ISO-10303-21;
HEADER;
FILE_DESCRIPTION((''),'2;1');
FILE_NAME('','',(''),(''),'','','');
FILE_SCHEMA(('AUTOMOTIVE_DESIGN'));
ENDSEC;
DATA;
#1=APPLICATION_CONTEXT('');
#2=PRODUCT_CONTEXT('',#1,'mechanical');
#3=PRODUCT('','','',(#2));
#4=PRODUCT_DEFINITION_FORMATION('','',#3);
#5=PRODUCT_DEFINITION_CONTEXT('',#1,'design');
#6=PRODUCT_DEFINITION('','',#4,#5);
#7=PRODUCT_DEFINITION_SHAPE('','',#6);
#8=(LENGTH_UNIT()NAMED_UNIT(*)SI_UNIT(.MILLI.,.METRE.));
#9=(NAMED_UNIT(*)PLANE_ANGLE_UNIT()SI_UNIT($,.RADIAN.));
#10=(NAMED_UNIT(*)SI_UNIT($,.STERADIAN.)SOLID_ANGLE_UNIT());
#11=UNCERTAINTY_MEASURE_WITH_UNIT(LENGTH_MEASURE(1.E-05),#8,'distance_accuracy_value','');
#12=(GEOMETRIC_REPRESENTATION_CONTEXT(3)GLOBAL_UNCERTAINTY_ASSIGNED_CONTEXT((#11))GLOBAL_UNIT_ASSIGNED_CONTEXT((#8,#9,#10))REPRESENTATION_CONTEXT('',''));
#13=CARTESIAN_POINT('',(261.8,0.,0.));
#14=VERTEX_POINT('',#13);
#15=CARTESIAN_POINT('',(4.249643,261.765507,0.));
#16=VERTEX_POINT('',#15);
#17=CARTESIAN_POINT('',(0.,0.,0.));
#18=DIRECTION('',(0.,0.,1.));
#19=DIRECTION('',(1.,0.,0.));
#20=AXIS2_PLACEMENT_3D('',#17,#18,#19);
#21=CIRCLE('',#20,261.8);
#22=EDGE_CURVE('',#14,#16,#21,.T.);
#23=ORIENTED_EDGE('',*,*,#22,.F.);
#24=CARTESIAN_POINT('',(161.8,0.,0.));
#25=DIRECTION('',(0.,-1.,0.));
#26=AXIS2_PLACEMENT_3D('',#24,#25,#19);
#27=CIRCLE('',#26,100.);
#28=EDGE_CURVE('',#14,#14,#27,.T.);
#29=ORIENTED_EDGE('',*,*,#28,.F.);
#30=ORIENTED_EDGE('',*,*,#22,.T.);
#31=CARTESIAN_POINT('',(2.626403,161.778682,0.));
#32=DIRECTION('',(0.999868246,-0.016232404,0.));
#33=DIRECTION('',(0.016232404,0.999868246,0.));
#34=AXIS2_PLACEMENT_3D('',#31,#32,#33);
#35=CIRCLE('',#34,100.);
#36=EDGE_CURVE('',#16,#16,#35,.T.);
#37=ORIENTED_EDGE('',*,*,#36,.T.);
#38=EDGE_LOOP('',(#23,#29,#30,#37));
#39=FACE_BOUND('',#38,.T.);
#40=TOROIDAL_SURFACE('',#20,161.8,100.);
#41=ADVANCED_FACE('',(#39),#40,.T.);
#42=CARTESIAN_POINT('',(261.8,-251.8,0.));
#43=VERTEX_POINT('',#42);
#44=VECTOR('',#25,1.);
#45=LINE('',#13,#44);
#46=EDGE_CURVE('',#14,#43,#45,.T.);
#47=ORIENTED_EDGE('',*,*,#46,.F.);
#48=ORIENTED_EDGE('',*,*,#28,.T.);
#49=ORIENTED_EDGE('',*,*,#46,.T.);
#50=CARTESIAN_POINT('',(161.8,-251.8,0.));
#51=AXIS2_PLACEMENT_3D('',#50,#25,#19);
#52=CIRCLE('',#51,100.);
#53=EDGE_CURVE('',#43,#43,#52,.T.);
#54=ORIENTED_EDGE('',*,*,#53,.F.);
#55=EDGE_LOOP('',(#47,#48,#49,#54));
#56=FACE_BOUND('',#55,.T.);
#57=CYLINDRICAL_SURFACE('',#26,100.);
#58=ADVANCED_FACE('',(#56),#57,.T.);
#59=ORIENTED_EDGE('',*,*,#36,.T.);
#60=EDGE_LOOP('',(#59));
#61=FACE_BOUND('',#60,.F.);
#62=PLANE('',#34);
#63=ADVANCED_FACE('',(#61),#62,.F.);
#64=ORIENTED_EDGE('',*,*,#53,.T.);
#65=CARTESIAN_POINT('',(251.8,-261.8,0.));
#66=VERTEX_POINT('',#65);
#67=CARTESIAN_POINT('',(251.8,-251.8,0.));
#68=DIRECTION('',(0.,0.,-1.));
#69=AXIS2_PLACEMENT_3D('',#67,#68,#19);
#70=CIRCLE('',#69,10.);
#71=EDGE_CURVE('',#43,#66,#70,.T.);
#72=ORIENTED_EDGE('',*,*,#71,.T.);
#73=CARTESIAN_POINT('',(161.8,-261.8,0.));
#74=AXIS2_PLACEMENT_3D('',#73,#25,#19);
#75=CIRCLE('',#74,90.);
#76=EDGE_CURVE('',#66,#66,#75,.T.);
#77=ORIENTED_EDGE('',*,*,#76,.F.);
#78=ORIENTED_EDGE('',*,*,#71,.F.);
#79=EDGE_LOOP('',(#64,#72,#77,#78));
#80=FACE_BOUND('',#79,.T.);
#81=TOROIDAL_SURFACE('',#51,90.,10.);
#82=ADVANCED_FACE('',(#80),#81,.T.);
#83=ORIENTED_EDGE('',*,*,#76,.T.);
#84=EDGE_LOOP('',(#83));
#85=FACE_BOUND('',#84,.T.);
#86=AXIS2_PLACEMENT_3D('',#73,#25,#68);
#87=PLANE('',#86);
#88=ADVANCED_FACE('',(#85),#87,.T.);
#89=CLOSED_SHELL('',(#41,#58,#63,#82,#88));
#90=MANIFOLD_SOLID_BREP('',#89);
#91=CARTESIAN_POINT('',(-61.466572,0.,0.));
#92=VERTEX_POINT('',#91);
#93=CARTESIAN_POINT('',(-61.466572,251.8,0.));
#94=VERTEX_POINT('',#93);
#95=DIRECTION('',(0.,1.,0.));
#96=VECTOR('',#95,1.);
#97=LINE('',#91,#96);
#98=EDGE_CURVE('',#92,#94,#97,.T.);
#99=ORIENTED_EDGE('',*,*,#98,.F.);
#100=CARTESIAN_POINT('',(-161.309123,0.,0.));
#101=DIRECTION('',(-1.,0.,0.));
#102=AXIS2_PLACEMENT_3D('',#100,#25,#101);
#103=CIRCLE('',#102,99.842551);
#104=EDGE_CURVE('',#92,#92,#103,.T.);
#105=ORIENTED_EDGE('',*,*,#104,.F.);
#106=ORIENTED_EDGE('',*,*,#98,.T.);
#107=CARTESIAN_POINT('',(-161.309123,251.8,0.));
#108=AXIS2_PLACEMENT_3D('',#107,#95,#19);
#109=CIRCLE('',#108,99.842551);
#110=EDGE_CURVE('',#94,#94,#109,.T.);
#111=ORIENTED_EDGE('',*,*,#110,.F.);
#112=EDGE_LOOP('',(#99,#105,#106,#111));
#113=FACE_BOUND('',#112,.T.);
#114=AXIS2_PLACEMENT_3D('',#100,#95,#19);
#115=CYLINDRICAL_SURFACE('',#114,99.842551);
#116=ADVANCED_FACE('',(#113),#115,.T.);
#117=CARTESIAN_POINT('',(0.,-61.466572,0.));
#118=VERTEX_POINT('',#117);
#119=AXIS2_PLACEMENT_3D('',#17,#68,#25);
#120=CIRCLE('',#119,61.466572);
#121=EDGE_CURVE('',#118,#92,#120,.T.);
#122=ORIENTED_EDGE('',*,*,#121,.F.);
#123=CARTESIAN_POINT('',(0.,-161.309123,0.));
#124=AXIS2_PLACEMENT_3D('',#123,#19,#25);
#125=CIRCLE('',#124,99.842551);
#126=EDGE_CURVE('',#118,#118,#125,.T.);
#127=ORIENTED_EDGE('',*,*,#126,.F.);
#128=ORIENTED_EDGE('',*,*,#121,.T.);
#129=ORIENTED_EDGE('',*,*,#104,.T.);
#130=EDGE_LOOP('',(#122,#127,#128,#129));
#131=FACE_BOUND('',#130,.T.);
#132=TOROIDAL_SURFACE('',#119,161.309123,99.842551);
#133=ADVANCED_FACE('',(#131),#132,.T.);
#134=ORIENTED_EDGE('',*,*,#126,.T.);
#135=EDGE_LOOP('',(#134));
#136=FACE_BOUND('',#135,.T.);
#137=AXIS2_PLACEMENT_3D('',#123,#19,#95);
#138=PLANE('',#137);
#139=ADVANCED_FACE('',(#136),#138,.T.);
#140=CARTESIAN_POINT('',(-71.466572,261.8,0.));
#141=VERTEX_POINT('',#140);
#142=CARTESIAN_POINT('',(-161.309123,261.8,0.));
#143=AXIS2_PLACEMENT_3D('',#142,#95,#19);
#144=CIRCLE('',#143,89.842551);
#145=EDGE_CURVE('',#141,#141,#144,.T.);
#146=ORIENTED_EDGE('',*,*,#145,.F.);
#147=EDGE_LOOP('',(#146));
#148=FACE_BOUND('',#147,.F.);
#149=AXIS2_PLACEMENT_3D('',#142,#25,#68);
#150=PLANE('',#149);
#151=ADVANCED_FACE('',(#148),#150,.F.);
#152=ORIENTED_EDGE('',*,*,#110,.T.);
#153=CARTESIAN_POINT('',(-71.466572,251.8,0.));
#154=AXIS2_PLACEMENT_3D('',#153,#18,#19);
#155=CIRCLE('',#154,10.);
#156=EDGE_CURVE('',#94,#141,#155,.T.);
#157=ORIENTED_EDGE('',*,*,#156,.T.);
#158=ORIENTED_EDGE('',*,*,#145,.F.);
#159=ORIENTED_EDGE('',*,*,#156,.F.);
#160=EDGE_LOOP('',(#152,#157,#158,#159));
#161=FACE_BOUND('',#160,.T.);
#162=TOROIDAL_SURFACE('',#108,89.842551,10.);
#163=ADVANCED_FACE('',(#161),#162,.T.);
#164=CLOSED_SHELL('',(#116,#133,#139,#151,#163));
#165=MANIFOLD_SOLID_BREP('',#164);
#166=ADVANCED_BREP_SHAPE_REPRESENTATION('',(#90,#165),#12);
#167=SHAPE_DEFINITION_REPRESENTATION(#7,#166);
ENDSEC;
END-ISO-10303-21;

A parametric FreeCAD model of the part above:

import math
import FreeCAD as App
import Part
import Sketcher
Q = App.Units.Quantity


def edges_at(feature, points):
    """Names of the edges that pass closest to the given points."""
    edges = feature.Shape.Edges
    near = lambda p: min(range(len(edges)), key=lambda i: edges[i].distToShape(Part.Vertex(*p))[0])
    return sorted({f"Edge{near(p) + 1}" for p in points})

doc = App.newDocument("Part")
body = doc.addObject("PartDesign::Body", "Body")

sketch1 = doc.addObject("Sketcher::SketchObject", "Sketch")
body.addObject(sketch1)
sketch1.AttachmentSupport = (doc.XZ_Plane, [""])
sketch1.MapMode = "FlatFace"
sketch1.addGeometry(Part.Circle(App.Vector(162, 0, 0), App.Vector(0, 0, 1), 100), False)
sketch1.addConstraint([
    Sketcher.Constraint("PointOnObject", 0, 3, -1),
    Sketcher.Constraint("Diameter", 0, Q("200 mm")),
    Sketcher.Constraint("DistanceX", -1, 1, 0, 3, Q("161.8 mm")),
])

sketch2 = doc.addObject("Sketcher::SketchObject", "Sketch001")
body.addObject(sketch2)
sketch2.AttachmentSupport = (doc.XY_Plane, [""])
sketch2.MapMode = "FlatFace"
sketch2.addGeometry(Part.ArcOfCircle(Part.Circle(App.Vector(0, 0, 0), App.Vector(0, 0, 1), 162), math.radians(0), math.radians(89)), False)
sketch2.addConstraint([
    Sketcher.Constraint("Coincident", 0, 3, -1, 1),
    Sketcher.Constraint("PointOnObject", 0, 1, -1),
    Sketcher.Constraint("Radius", 0, Q("161.8 mm")),
    Sketcher.Constraint("DistanceX", -1, 1, 0, 2, Q("2.626403 mm")),
])
doc.recompute()

additivepipe = doc.addObject("PartDesign::AdditivePipe", "AdditivePipe")
body.addObject(additivepipe)
additivepipe.Profile = sketch1
additivepipe.Spine = (sketch2, ["Edge1"])

sketch3 = doc.addObject("Sketcher::SketchObject", "Sketch002")
body.addObject(sketch3)
sketch3.AttachmentSupport = (doc.XZ_Plane, [""])
sketch3.MapMode = "FlatFace"
sketch3.addGeometry(Part.Circle(App.Vector(162, 0, 0), App.Vector(0, 0, 1), 100), False)
sketch3.addConstraint([
    Sketcher.Constraint("PointOnObject", 0, 3, -1),
    Sketcher.Constraint("Diameter", 0, Q("200 mm")),
    Sketcher.Constraint("DistanceX", -1, 1, 0, 3, Q("161.8 mm")),
])

sketch4 = doc.addObject("Sketcher::SketchObject", "Sketch003")
body.addObject(sketch4)
sketch4.AttachmentSupport = (doc.XY_Plane, [""])
sketch4.MapMode = "FlatFace"
sketch4.addGeometry(Part.LineSegment(App.Vector(162, 0, 0), App.Vector(162, -262, 0)), False)
sketch4.addConstraint([
    Sketcher.Constraint("Vertical", 0),
    Sketcher.Constraint("PointOnObject", 0, 1, -1),
    Sketcher.Constraint("DistanceY", 0, 2, 0, 1, Q("261.8 mm")),
    Sketcher.Constraint("DistanceX", -1, 1, 0, 1, Q("161.8 mm")),
])
doc.recompute()

additivepipe2 = doc.addObject("PartDesign::AdditivePipe", "AdditivePipe001")
body.addObject(additivepipe2)
additivepipe2.Profile = sketch3
additivepipe2.Spine = (sketch4, ["Edge1"])

sketch5 = doc.addObject("Sketcher::SketchObject", "Sketch004")
body.addObject(sketch5)
sketch5.AttachmentSupport = (doc.XZ_Plane, [""])
sketch5.MapMode = "FlatFace"
sketch5.AttachmentOffset = App.Placement(App.Vector(0, 0, 261.8), App.Rotation())
sketch5.addGeometry([
    Part.Circle(App.Vector(162, 0, 0), App.Vector(0, 0, 1), 159),
    Part.Circle(App.Vector(162, 0, 0), App.Vector(0, 0, 1), 100),
], False)
sketch5.addConstraint([
    Sketcher.Constraint("Coincident", 1, 3, 0, 3),
    Sketcher.Constraint("PointOnObject", 0, 3, -1),
    Sketcher.Constraint("Diameter", 1, Q("200 mm")),
    Sketcher.Constraint("DistanceX", -1, 1, 0, 3, Q("161.8 mm")),
    Sketcher.Constraint("Diameter", 0, Q("317.075334 mm")),
])
pocket1 = doc.addObject("PartDesign::Pocket", "Pocket")
body.addObject(pocket1)
pocket1.Profile = sketch5
pocket1.Length = 261
doc.recompute()

fillet = doc.addObject("PartDesign::Fillet", "Fillet")
body.addObject(fillet)
fillet.Base = (pocket1, edges_at(pocket1, [(61.8, 0, 0), (61.8, -261.8, 0), (261.8, -130.9, 0)]))
fillet.Radius = 10
body2 = doc.addObject("PartDesign::Body", "Body001")

sketch6 = doc.addObject("Sketcher::SketchObject", "Sketch005")
body2.addObject(sketch6)
sketch6.AttachmentSupport = (doc.getObject("YZ_Plane001"), [""])
sketch6.MapMode = "FlatFace"
sketch6.addGeometry(Part.Circle(App.Vector(-161, 0, 0), App.Vector(0, 0, 1), 100), False)
sketch6.addConstraint([
    Sketcher.Constraint("PointOnObject", 0, 3, -1),
    Sketcher.Constraint("Diameter", 0, Q("199.685102 mm")),
    Sketcher.Constraint("DistanceX", 0, 3, -1, 1, Q("161.309123 mm")),
])

sketch7 = doc.addObject("Sketcher::SketchObject", "Sketch006")
body2.addObject(sketch7)
sketch7.AttachmentSupport = (doc.getObject("XY_Plane001"), [""])
sketch7.MapMode = "FlatFace"
sketch7.addGeometry([
    Part.ArcOfCircle(Part.Circle(App.Vector(0, 0, 0), App.Vector(0, 0, 1), 161), math.radians(180), math.radians(270)),
    Part.LineSegment(App.Vector(-161, 0, 0), App.Vector(-161, 262, 0)),
], False)
sketch7.addConstraint([
    Sketcher.Constraint("Tangent", 0, 1, 1, 1),
    Sketcher.Constraint("Vertical", 1),
    Sketcher.Constraint("Coincident", 0, 3, -1, 1),
    Sketcher.Constraint("PointOnObject", 0, 2, -2),
    Sketcher.Constraint("DistanceY", 1, 1, 1, 2, Q("261.8 mm")),
    Sketcher.Constraint("Radius", 0, Q("161.134169 mm")),
])
doc.recompute()

additivepipe3 = doc.addObject("PartDesign::AdditivePipe", "AdditivePipe002")
body2.addObject(additivepipe3)
additivepipe3.Profile = sketch6
additivepipe3.Spine = (sketch7, ["Edge1", "Edge2"])
doc.recompute()

fillet2 = doc.addObject("PartDesign::Fillet", "Fillet001")
body2.addObject(fillet2)
fillet2.Base = (additivepipe3, edges_at(additivepipe3, [(-261.152, 261.8, 0)]))
fillet2.Radius = 10

doc.recompute()
